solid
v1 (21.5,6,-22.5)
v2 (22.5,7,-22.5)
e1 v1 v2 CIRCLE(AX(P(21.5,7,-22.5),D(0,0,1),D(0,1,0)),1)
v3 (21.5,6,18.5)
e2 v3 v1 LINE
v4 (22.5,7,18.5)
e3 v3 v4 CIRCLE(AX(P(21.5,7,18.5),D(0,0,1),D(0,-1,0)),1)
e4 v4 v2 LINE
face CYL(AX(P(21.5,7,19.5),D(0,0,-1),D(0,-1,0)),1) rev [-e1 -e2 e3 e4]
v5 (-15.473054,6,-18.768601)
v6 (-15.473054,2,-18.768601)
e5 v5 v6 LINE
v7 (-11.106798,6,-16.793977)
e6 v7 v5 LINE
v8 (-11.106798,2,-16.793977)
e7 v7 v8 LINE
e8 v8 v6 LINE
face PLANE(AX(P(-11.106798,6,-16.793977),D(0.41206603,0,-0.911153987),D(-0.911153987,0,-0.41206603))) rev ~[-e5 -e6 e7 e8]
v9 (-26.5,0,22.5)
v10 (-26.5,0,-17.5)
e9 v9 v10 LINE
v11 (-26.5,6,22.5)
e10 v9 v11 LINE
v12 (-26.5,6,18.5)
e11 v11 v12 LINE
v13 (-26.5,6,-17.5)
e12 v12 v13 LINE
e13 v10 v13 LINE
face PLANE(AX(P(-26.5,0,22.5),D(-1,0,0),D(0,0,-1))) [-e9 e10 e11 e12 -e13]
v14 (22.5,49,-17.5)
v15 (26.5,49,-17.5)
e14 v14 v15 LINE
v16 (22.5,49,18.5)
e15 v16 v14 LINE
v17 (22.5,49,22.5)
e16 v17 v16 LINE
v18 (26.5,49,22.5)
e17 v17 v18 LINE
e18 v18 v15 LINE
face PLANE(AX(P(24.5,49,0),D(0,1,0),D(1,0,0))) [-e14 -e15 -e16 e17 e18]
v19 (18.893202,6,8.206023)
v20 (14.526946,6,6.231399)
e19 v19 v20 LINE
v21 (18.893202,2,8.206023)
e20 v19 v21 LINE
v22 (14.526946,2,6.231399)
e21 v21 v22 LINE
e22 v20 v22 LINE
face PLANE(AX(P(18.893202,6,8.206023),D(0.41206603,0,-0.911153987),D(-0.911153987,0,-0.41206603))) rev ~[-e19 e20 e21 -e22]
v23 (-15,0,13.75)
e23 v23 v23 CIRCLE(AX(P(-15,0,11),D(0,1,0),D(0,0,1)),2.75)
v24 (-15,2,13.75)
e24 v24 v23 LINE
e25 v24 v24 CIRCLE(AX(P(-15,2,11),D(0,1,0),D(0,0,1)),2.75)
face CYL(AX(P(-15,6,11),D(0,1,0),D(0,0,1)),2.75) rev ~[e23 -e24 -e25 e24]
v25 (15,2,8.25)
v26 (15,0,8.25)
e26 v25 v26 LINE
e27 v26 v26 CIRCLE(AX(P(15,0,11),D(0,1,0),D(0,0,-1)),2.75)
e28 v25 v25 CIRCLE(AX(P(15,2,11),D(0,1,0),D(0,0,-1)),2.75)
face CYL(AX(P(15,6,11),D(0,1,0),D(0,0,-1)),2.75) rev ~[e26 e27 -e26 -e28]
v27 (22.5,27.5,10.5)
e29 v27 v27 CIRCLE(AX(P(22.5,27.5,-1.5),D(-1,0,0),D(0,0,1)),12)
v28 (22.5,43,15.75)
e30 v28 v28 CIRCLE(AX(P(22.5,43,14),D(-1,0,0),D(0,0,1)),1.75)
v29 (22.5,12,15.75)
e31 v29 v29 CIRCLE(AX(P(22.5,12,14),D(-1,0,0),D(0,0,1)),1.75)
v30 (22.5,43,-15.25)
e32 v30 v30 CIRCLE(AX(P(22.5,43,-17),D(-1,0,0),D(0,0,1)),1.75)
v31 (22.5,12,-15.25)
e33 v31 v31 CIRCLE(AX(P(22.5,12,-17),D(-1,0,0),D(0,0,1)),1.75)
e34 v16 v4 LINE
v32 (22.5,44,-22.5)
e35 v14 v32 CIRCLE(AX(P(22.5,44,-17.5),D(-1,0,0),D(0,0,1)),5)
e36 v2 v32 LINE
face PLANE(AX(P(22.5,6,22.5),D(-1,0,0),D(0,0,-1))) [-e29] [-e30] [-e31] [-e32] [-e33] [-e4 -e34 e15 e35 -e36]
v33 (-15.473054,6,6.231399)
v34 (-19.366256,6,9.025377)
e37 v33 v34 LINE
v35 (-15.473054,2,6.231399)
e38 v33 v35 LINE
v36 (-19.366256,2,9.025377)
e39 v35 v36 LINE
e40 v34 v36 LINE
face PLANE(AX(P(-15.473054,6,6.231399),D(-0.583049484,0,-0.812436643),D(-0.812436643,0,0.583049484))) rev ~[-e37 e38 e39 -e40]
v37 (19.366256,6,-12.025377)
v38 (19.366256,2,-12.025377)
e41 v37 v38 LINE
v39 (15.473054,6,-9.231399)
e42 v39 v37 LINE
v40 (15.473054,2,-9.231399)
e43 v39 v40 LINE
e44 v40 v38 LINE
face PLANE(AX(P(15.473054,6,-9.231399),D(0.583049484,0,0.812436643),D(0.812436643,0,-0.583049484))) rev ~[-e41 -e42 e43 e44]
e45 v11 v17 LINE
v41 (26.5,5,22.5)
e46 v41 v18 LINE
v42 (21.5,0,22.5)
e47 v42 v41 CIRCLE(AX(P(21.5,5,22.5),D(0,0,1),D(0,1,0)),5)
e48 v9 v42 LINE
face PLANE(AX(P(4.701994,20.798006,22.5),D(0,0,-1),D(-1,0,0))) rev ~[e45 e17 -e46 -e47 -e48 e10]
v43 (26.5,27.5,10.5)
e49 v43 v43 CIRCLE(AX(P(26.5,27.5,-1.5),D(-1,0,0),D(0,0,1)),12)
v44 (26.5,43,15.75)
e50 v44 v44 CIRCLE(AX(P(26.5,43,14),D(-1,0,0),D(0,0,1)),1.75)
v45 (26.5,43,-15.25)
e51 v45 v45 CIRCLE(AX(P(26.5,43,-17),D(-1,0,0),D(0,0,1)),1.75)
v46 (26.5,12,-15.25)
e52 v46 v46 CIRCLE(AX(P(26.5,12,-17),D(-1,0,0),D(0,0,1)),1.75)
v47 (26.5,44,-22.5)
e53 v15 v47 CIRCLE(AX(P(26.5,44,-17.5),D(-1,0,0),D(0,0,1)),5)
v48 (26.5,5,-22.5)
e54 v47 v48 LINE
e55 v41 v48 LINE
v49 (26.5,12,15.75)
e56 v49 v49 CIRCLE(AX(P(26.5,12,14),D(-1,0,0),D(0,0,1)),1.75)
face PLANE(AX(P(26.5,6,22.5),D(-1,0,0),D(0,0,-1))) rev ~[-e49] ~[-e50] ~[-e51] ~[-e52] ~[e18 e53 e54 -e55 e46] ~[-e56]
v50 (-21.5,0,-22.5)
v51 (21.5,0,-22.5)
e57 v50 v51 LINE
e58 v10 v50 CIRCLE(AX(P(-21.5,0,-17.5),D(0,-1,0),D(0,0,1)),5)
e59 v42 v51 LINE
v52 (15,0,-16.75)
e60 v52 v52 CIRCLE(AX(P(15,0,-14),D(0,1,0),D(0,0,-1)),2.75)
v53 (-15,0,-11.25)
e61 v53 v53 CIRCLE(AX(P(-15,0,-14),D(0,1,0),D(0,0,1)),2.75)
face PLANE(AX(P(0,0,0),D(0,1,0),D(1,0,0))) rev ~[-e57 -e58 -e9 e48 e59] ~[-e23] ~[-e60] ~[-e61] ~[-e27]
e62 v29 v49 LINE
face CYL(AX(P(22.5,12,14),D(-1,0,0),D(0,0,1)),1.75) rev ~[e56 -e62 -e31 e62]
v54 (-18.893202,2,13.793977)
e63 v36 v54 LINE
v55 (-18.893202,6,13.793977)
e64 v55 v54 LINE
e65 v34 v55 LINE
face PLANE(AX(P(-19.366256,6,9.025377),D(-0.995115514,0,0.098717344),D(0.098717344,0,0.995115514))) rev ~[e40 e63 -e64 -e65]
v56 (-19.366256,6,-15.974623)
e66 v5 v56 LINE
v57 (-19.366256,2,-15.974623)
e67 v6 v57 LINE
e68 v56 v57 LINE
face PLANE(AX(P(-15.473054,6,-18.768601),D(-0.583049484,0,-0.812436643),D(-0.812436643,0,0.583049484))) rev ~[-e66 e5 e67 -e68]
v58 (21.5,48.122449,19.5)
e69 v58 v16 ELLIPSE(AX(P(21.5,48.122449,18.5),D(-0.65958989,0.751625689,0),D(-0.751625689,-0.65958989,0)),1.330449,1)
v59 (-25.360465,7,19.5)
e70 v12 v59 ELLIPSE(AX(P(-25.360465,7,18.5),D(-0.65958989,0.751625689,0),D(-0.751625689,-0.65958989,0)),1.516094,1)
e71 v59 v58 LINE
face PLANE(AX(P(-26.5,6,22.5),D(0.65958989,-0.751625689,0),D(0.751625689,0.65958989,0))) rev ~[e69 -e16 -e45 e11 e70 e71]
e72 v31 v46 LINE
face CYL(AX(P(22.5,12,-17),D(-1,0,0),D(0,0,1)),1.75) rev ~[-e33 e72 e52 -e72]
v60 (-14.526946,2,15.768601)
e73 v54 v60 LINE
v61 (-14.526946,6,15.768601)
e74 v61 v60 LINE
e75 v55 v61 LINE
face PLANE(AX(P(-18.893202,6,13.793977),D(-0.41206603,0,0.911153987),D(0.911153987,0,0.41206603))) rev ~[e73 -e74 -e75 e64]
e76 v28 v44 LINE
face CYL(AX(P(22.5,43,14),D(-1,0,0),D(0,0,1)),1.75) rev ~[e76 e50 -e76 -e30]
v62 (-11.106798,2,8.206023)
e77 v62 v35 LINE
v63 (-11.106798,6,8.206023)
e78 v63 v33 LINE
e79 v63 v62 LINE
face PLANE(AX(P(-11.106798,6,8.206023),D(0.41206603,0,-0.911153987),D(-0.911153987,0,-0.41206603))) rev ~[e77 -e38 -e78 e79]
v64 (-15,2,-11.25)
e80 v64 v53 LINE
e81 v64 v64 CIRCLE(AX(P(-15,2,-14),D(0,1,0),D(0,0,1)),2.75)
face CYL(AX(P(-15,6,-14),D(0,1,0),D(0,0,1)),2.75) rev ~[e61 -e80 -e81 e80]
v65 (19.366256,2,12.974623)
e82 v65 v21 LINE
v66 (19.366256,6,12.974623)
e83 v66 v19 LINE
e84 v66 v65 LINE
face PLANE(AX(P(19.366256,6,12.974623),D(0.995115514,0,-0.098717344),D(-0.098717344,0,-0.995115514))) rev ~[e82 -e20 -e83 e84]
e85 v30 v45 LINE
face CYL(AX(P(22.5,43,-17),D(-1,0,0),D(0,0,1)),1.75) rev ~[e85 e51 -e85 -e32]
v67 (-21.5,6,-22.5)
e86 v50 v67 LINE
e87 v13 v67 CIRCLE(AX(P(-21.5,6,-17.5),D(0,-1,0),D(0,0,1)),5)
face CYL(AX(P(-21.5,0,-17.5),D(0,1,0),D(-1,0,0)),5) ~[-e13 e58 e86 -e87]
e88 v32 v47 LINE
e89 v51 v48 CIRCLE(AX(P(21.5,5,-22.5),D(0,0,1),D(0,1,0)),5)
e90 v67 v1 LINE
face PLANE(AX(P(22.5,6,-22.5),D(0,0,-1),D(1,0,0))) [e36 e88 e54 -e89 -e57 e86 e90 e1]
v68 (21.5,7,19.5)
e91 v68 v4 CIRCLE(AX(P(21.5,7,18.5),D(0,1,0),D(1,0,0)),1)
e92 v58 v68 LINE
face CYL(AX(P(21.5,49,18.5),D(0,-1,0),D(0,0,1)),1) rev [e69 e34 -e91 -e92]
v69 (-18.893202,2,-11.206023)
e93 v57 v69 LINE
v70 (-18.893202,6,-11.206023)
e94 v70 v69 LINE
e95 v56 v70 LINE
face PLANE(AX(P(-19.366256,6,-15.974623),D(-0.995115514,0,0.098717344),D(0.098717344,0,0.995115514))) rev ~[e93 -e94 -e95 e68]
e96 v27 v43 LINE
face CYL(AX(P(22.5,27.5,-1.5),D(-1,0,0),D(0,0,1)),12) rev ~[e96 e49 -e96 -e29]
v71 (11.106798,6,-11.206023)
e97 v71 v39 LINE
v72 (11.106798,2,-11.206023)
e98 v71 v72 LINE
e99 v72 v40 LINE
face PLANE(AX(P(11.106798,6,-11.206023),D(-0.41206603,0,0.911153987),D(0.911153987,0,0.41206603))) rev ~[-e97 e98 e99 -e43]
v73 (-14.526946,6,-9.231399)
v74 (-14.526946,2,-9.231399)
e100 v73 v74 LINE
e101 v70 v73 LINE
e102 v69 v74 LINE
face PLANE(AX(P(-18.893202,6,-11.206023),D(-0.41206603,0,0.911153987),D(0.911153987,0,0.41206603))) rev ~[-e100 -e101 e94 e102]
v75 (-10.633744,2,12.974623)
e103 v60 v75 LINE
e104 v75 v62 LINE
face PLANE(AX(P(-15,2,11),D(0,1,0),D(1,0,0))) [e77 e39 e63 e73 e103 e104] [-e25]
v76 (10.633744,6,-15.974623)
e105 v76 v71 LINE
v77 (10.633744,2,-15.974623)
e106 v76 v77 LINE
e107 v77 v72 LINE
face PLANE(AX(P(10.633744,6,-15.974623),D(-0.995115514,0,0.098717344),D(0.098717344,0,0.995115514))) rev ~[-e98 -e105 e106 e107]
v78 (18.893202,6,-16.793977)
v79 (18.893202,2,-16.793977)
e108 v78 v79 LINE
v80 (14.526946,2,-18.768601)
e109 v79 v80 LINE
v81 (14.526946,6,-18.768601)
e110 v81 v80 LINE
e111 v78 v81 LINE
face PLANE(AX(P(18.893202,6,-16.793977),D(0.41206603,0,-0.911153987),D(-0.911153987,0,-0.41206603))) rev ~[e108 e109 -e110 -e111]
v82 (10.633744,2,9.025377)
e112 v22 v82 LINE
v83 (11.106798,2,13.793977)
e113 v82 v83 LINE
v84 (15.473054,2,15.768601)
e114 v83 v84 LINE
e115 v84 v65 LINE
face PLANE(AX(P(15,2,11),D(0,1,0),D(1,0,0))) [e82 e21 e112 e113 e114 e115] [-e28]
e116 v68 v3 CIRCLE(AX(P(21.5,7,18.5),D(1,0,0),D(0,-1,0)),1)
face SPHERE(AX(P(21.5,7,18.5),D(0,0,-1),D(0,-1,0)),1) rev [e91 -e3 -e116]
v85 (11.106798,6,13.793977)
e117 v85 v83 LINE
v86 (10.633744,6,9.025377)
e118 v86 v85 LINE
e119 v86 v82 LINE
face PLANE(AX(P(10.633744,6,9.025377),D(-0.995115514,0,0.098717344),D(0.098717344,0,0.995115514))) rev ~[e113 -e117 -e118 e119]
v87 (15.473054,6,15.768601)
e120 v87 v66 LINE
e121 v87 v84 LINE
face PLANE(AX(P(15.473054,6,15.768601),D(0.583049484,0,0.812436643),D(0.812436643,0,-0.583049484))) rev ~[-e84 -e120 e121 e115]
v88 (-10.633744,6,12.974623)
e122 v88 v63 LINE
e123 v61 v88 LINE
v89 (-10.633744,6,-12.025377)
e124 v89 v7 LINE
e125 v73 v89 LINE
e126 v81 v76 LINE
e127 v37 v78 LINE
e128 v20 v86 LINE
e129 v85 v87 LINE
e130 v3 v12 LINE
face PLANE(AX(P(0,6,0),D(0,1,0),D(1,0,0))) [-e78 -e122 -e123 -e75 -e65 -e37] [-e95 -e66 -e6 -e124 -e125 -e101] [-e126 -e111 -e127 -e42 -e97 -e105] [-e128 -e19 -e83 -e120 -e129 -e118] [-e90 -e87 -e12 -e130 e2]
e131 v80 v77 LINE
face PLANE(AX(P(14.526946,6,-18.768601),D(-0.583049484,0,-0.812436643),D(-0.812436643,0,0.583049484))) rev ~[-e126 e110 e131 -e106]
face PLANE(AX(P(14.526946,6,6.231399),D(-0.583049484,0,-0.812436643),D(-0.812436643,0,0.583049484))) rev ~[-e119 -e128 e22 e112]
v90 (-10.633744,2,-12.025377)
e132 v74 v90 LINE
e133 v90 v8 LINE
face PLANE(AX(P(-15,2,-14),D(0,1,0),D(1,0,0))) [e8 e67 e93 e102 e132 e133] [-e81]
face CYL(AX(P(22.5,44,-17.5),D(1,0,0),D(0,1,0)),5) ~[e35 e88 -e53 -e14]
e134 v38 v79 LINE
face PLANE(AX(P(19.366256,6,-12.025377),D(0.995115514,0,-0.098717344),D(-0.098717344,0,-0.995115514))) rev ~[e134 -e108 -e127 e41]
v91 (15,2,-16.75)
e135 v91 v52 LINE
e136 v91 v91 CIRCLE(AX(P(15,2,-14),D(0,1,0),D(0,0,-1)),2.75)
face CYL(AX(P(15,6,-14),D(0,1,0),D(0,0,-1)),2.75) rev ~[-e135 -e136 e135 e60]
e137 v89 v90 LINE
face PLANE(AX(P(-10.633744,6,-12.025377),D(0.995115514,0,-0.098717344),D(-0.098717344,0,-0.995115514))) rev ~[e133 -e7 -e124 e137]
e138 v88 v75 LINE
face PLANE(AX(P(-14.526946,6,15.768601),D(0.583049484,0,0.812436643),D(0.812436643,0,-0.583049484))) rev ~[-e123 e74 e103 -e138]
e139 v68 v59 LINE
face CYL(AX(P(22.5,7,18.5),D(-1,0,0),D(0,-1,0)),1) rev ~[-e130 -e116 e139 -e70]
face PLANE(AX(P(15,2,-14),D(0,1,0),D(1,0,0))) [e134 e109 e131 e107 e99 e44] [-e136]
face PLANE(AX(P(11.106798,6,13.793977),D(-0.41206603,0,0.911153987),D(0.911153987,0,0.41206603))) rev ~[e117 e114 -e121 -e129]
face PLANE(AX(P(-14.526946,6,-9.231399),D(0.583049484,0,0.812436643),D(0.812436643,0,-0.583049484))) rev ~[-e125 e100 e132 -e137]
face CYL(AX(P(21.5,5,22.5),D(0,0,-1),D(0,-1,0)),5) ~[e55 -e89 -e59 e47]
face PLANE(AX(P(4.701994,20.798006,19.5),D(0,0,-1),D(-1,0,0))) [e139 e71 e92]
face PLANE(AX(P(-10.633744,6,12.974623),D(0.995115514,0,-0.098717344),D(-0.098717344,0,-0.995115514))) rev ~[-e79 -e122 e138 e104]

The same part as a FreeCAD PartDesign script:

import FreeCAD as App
import Part
import Sketcher
Q = App.Units.Quantity


def edges_at(feature, points):
    """Names of the edges that pass closest to the given points."""
    edges = feature.Shape.Edges
    near = lambda p: min(range(len(edges)), key=lambda i: edges[i].distToShape(Part.Vertex(*p))[0])
    return sorted({f"Edge{near(p) + 1}" for p in points})


def add_polygon(sketch, points):
    """Adds a closed chain of lines whose ends are joined by coincident constraints."""
    first, n = sketch.GeometryCount, len(points)
    for a, b in zip(points, points[1:] + points[:1]):
        sketch.addGeometry(Part.LineSegment(App.Vector(*a, 0), App.Vector(*b, 0)), False)
    for i in range(n):
        sketch.addConstraint(Sketcher.Constraint("Coincident", first + i, 2, first + (i + 1) % n, 1))

doc = App.newDocument("Part")
params = doc.addObject("Spreadsheet::Sheet", "Params")
for row, (alias, value) in enumerate([
    ("sketch1_width", "53 mm"),
    ("sketch1_height", "45 mm"),
    ("pad1_length", "6 mm"),
    ("sketch2_width", "4 mm"),
    ("sketch2_height", "45 mm"),
    ("pad2_length", "43 mm"),
    ("sketch3_width", "49 mm"),
    ("sketch3_height", "43 mm"),
    ("pad3_length", "3 mm"),
    ("sketch4_diameter", "24 mm"),
    ("sketch4_diameter2", "3.5 mm"),
    ("sketch5_diameter", "5.5 mm"),
    ("fillet_radius", "5 mm"),
    ("fillet2_radius", "1 mm"),
    ("pocket3_length", "4 mm"),
    ("fillet3_radius", "5 mm"),
], start=1):
    params.set(f"A{row}", alias)
    params.set(f"B{row}", "=" + value)
    params.setAlias(f"B{row}", alias)

body = doc.addObject("PartDesign::Body", "Body")

sketch1 = doc.addObject("Sketcher::SketchObject", "Sketch")
body.addObject(sketch1)
sketch1.AttachmentSupport = (doc.XZ_Plane, [""])
sketch1.MapMode = "FlatFace"
add_polygon(sketch1, [(-26, -22), (-26, 22), (26, 22), (26, -22)])
sketch1.addConstraint([
    Sketcher.Constraint("Vertical", 0),
    Sketcher.Constraint("Horizontal", 1),
    Sketcher.Constraint("Vertical", 2),
    Sketcher.Constraint("Horizontal", 3),
    Sketcher.Constraint("Symmetric", 0, 2, 2, 2, -1, 1),
    Sketcher.Constraint("DistanceX", 1, 1, 1, 2, Q("53 mm")),
    Sketcher.Constraint("DistanceY", 0, 1, 0, 2, Q("45 mm")),
])
sketch1.setExpression("Constraints[9]", "Params.sketch1_width")
sketch1.setExpression("Constraints[10]", "Params.sketch1_height")
pad1 = doc.addObject("PartDesign::Pad", "Pad")
body.addObject(pad1)
pad1.Profile = sketch1
pad1.setExpression("Length", "Params.pad1_length")
pad1.Reversed = True

sketch2 = doc.addObject("Sketcher::SketchObject", "Sketch001")
body.addObject(sketch2)
sketch2.AttachmentSupport = (doc.XZ_Plane, [""])
sketch2.MapMode = "FlatFace"
sketch2.AttachmentOffset = App.Placement(App.Vector(0, 0, -6), App.Rotation())
add_polygon(sketch2, [(22.5, -22.5), (22.5, 22.5), (26.5, 22.5), (26.5, -22.5)])
sketch2.addConstraint([
    Sketcher.Constraint("Vertical", 0),
    Sketcher.Constraint("Horizontal", 1),
    Sketcher.Constraint("Vertical", 2),
    Sketcher.Constraint("Horizontal", 3),
    Sketcher.Constraint("DistanceX", 1, 1, 1, 2, Q("4 mm")),
    Sketcher.Constraint("DistanceY", 0, 1, 0, 2, Q("45 mm")),
    Sketcher.Constraint("DistanceX", -1, 1, 0, 2, Q("22.5 mm")),
    Sketcher.Constraint("DistanceY", -1, 1, 0, 2, Q("22.5 mm")),
])
sketch2.setExpression("Constraints[8]", "Params.sketch2_width")
sketch2.setExpression("Constraints[9]", "Params.sketch2_height")
pad2 = doc.addObject("PartDesign::Pad", "Pad001")
body.addObject(pad2)
pad2.Profile = sketch2
pad2.setExpression("Length", "Params.pad2_length")
pad2.Reversed = True

sketch3 = doc.addObject("Sketcher::SketchObject", "Sketch002")
body.addObject(sketch3)
sketch3.AttachmentSupport = (doc.XY_Plane, [""])
sketch3.MapMode = "FlatFace"
sketch3.AttachmentOffset = App.Placement(App.Vector(0, 0, 22.5), App.Rotation())
add_polygon(sketch3, [(22, 49), (-26, 6), (22, 6)])
sketch3.addConstraint([
    Sketcher.Constraint("Horizontal", 1),
    Sketcher.Constraint("Vertical", 2),
    Sketcher.Constraint("DistanceX", 1, 1, 1, 2, Q("49 mm")),
    Sketcher.Constraint("DistanceY", 2, 1, 2, 2, Q("43 mm")),
    Sketcher.Constraint("DistanceY", -1, 1, 0, 2, Q("6 mm")),
    Sketcher.Constraint("DistanceX", 0, 2, -1, 1, Q("26.5 mm")),
])
sketch3.setExpression("Constraints[5]", "Params.sketch3_width")
sketch3.setExpression("Constraints[6]", "Params.sketch3_height")
pad3 = doc.addObject("PartDesign::Pad", "Pad002")
body.addObject(pad3)
pad3.Profile = sketch3
pad3.setExpression("Length", "Params.pad3_length")
pad3.Reversed = True

sketch4 = doc.addObject("Sketcher::SketchObject", "Sketch003")
body.addObject(sketch4)
sketch4.AttachmentSupport = (doc.YZ_Plane, [""])
sketch4.MapMode = "FlatFace"
sketch4.AttachmentOffset = App.Placement(App.Vector(0, 0, 22.5), App.Rotation())
sketch4.addGeometry([
    Part.Circle(App.Vector(27.5, -1.5, 0), App.Vector(0, 0, 1), 12),
    Part.Circle(App.Vector(43, -17, 0), App.Vector(0, 0, 1), 1.8),
    Part.Circle(App.Vector(43, 14, 0), App.Vector(0, 0, 1), 1.8),
    Part.Circle(App.Vector(12, 14, 0), App.Vector(0, 0, 1), 1.8),
    Part.Circle(App.Vector(12, -17, 0), App.Vector(0, 0, 1), 1.8),
], False)
sketch4.addConstraint([
    Sketcher.Constraint("Equal", 1, 2),
    Sketcher.Constraint("Equal", 2, 3),
    Sketcher.Constraint("Equal", 3, 4),
    Sketcher.Constraint("Horizontal", 2, 3, 3, 3),
    Sketcher.Constraint("Horizontal", 1, 3, 4, 3),
    Sketcher.Constraint("Vertical", 1, 3, 2, 3),
    Sketcher.Constraint("Vertical", 3, 3, 4, 3),
    Sketcher.Constraint("Diameter", 0, Q("24 mm")),
    Sketcher.Constraint("Diameter", 1, Q("3.5 mm")),
    Sketcher.Constraint("DistanceX", -1, 1, 1, 3, Q("43 mm")),
    Sketcher.Constraint("DistanceY", 1, 3, -1, 1, Q("17 mm")),
    Sketcher.Constraint("DistanceY", -1, 1, 2, 3, Q("14 mm")),
    Sketcher.Constraint("DistanceX", -1, 1, 3, 3, Q("12 mm")),
    Sketcher.Constraint("DistanceX", -1, 1, 0, 3, Q("27.5 mm")),
    Sketcher.Constraint("DistanceY", 0, 3, -1, 1, Q("1.5 mm")),
])
sketch4.setExpression("Constraints[7]", "Params.sketch4_diameter")
sketch4.setExpression("Constraints[8]", "Params.sketch4_diameter2")
pocket1 = doc.addObject("PartDesign::Pocket", "Pocket")
body.addObject(pocket1)
pocket1.Profile = sketch4
pocket1.Type = "ThroughAll"
pocket1.Reversed = True

sketch5 = doc.addObject("Sketcher::SketchObject", "Sketch004")
body.addObject(sketch5)
sketch5.AttachmentSupport = (doc.XZ_Plane, [""])
sketch5.MapMode = "FlatFace"
sketch5.AttachmentOffset = App.Placement(App.Vector(0, 0, -6), App.Rotation())
sketch5.addGeometry([
    Part.Circle(App.Vector(-15, -14, 0), App.Vector(0, 0, 1), 2.8),
    Part.Circle(App.Vector(-15, 11, 0), App.Vector(0, 0, 1), 2.8),
    Part.Circle(App.Vector(15, 11, 0), App.Vector(0, 0, 1), 2.8),
    Part.Circle(App.Vector(15, -14, 0), App.Vector(0, 0, 1), 2.8),
], False)
sketch5.addConstraint([
    Sketcher.Constraint("Equal", 0, 1),
    Sketcher.Constraint("Equal", 1, 2),
    Sketcher.Constraint("Equal", 2, 3),
    Sketcher.Constraint("Symmetric", 1, 3, 2, 3, -2),
    Sketcher.Constraint("Symmetric", 0, 3, 3, 3, -2),
    Sketcher.Constraint("Vertical", 0, 3, 1, 3),
    Sketcher.Constraint("Diameter", 0, Q("5.5 mm")),
    Sketcher.Constraint("DistanceX", 0, 3, -1, 1, Q("15 mm")),
    Sketcher.Constraint("DistanceY", 0, 3, -1, 1, Q("14 mm")),
    Sketcher.Constraint("DistanceY", -1, 1, 1, 3, Q("11 mm")),
])
sketch5.setExpression("Constraints[6]", "Params.sketch5_diameter")
pocket2 = doc.addObject("PartDesign::Pocket", "Pocket001")
body.addObject(pocket2)
pocket2.Profile = sketch5
pocket2.Type = "ThroughAll"
pocket2.Reversed = True
doc.recompute()

fillet = doc.addObject("PartDesign::Fillet", "Fillet")
body.addObject(fillet)
fillet.Base = (pocket2, edges_at(pocket2, [(24.5, 49, -22.5), (-26.5, 3, -22.5)]))
fillet.setExpression("Radius", "Params.fillet_radius")
doc.recompute()

fillet2 = doc.addObject("PartDesign::Fillet", "Fillet001")
body.addObject(fillet2)
fillet2.Base = (fillet, edges_at(fillet, [(22.5, 6, -1.5), (-2, 6, 19.5), (22.5, 27.5, 19.5)]))
fillet2.setExpression("Radius", "Params.fillet2_radius")

sketch6 = doc.addObject("Sketcher::SketchObject", "Sketch005")
body.addObject(sketch6)
sketch6.AttachmentSupport = (doc.XZ_Plane, [""])
sketch6.MapMode = "FlatFace"
sketch6.AttachmentOffset = App.Placement(App.Vector(0, 0, -6), App.Rotation())
add_polygon(sketch6, [(15.5, -9.2), (19.4, -12), (18.9, -16.8), (14.5, -18.8), (10.6, -16), (11.1, -11.2)])
add_polygon(sketch6, [(-14.5, -9.2), (-10.6, -12), (-11.1, -16.8), (-15.5, -18.8), (-19.4, -16), (-18.9, -11.2)])
add_polygon(sketch6, [(15.5, 15.8), (19.4, 13), (18.9, 8.2), (14.5, 6.2), (10.6, 9), (11.1, 13.8)])
add_polygon(sketch6, [(-14.5, 15.8), (-10.6, 13), (-11.1, 8.2), (-15.5, 6.2), (-19.4, 9), (-18.9, 13.8)])
sketch6.addConstraint([
    Sketcher.Constraint("Parallel", 0, 3),
    Sketcher.Constraint("Parallel", 1, 4),
    Sketcher.Constraint("Parallel", 2, 5),
    Sketcher.Constraint("Parallel", 3, 6),
    Sketcher.Constraint("Parallel", 4, 7),
    Sketcher.Constraint("Parallel", 5, 8),
    Sketcher.Constraint("Parallel", 6, 9),
    Sketcher.Constraint("Parallel", 7, 10),
    Sketcher.Constraint("Parallel", 8, 11),
    Sketcher.Constraint("Parallel", 9, 12),
    Sketcher.Constraint("Parallel", 10, 13),
    Sketcher.Constraint("Parallel", 11, 14),
    Sketcher.Constraint("Parallel", 12, 15),
    Sketcher.Constraint("Parallel", 13, 16),
    Sketcher.Constraint("Parallel", 14, 17),
    Sketcher.Constraint("Parallel", 15, 18),
    Sketcher.Constraint("Parallel", 16, 19),
    Sketcher.Constraint("Parallel", 17, 20),
    Sketcher.Constraint("Parallel", 18, 21),
    Sketcher.Constraint("Parallel", 19, 22),
    Sketcher.Constraint("Parallel", 20, 23),
    Sketcher.Constraint("Horizontal", 0, 2, 6, 2),
    Sketcher.Constraint("Horizontal", 1, 2, 7, 2),
    Sketcher.Constraint("Horizontal", 2, 2, 8, 2),
    Sketcher.Constraint("Horizontal", 3, 2, 9, 2),
    Sketcher.Constraint("Horizontal", 4, 2, 10, 2),
    Sketcher.Constraint("Horizontal", 12, 2, 18, 2),
    Sketcher.Constraint("Horizontal", 13, 2, 19, 2),
    Sketcher.Constraint("Horizontal", 14, 2, 20, 2),
    Sketcher.Constraint("Horizontal", 15, 2, 21, 2),
    Sketcher.Constraint("Horizontal", 16, 2, 22, 2),
    Sketcher.Constraint("Vertical", 0, 2, 12, 2),
    Sketcher.Constraint("Vertical", 1, 2, 13, 2),
    Sketcher.Constraint("Vertical", 2, 2, 14, 2),
    Sketcher.Constraint("Vertical", 3, 2, 15, 2),
    Sketcher.Constraint("Vertical", 4, 2, 16, 2),
    Sketcher.Constraint("Vertical", 6, 2, 18, 2),
    Sketcher.Constraint("Equal", 0, 1),
    Sketcher.Constraint("Equal", 1, 2),
    Sketcher.Constraint("Equal", 2, 3),
    Sketcher.Constraint("DistanceX", 8, 2, 2, 2, Q("30 mm")),
    Sketcher.Constraint("DistanceY", 0, 2, 12, 2, Q("25 mm")),
    Sketcher.Constraint("DistanceY", 2, 2, -1, 1, Q("18.768601 mm")),
    Sketcher.Constraint("DistanceY", 5, 2, -1, 1, Q("9.231399 mm")),
    Sketcher.Constraint("DistanceY", 1, 2, 0, 2, Q("4.768601 mm")),
    Sketcher.Constraint("DistanceX", 2, 2, 0, 2, Q("4.839311 mm")),
    Sketcher.Constraint("DistanceX", 3, 2, 1, 2, Q("8.259459 mm")),
    Sketcher.Constraint("DistanceX", -1, 1, 0, 2, Q("19.366256 mm")),
])
pocket3 = doc.addObject("PartDesign::Pocket", "Pocket002")
body.addObject(pocket3)
pocket3.Profile = sketch6
pocket3.setExpression("Length", "Params.pocket3_length")
pocket3.Reversed = True
doc.recompute()

fillet3 = doc.addObject("PartDesign::Fillet", "Fillet002")
body.addObject(fillet3)
fillet3.Base = (pocket3, edges_at(pocket3, [(26.5, 0, 0)]))
fillet3.setExpression("Radius", "Params.fillet3_radius")

doc.recompute()
